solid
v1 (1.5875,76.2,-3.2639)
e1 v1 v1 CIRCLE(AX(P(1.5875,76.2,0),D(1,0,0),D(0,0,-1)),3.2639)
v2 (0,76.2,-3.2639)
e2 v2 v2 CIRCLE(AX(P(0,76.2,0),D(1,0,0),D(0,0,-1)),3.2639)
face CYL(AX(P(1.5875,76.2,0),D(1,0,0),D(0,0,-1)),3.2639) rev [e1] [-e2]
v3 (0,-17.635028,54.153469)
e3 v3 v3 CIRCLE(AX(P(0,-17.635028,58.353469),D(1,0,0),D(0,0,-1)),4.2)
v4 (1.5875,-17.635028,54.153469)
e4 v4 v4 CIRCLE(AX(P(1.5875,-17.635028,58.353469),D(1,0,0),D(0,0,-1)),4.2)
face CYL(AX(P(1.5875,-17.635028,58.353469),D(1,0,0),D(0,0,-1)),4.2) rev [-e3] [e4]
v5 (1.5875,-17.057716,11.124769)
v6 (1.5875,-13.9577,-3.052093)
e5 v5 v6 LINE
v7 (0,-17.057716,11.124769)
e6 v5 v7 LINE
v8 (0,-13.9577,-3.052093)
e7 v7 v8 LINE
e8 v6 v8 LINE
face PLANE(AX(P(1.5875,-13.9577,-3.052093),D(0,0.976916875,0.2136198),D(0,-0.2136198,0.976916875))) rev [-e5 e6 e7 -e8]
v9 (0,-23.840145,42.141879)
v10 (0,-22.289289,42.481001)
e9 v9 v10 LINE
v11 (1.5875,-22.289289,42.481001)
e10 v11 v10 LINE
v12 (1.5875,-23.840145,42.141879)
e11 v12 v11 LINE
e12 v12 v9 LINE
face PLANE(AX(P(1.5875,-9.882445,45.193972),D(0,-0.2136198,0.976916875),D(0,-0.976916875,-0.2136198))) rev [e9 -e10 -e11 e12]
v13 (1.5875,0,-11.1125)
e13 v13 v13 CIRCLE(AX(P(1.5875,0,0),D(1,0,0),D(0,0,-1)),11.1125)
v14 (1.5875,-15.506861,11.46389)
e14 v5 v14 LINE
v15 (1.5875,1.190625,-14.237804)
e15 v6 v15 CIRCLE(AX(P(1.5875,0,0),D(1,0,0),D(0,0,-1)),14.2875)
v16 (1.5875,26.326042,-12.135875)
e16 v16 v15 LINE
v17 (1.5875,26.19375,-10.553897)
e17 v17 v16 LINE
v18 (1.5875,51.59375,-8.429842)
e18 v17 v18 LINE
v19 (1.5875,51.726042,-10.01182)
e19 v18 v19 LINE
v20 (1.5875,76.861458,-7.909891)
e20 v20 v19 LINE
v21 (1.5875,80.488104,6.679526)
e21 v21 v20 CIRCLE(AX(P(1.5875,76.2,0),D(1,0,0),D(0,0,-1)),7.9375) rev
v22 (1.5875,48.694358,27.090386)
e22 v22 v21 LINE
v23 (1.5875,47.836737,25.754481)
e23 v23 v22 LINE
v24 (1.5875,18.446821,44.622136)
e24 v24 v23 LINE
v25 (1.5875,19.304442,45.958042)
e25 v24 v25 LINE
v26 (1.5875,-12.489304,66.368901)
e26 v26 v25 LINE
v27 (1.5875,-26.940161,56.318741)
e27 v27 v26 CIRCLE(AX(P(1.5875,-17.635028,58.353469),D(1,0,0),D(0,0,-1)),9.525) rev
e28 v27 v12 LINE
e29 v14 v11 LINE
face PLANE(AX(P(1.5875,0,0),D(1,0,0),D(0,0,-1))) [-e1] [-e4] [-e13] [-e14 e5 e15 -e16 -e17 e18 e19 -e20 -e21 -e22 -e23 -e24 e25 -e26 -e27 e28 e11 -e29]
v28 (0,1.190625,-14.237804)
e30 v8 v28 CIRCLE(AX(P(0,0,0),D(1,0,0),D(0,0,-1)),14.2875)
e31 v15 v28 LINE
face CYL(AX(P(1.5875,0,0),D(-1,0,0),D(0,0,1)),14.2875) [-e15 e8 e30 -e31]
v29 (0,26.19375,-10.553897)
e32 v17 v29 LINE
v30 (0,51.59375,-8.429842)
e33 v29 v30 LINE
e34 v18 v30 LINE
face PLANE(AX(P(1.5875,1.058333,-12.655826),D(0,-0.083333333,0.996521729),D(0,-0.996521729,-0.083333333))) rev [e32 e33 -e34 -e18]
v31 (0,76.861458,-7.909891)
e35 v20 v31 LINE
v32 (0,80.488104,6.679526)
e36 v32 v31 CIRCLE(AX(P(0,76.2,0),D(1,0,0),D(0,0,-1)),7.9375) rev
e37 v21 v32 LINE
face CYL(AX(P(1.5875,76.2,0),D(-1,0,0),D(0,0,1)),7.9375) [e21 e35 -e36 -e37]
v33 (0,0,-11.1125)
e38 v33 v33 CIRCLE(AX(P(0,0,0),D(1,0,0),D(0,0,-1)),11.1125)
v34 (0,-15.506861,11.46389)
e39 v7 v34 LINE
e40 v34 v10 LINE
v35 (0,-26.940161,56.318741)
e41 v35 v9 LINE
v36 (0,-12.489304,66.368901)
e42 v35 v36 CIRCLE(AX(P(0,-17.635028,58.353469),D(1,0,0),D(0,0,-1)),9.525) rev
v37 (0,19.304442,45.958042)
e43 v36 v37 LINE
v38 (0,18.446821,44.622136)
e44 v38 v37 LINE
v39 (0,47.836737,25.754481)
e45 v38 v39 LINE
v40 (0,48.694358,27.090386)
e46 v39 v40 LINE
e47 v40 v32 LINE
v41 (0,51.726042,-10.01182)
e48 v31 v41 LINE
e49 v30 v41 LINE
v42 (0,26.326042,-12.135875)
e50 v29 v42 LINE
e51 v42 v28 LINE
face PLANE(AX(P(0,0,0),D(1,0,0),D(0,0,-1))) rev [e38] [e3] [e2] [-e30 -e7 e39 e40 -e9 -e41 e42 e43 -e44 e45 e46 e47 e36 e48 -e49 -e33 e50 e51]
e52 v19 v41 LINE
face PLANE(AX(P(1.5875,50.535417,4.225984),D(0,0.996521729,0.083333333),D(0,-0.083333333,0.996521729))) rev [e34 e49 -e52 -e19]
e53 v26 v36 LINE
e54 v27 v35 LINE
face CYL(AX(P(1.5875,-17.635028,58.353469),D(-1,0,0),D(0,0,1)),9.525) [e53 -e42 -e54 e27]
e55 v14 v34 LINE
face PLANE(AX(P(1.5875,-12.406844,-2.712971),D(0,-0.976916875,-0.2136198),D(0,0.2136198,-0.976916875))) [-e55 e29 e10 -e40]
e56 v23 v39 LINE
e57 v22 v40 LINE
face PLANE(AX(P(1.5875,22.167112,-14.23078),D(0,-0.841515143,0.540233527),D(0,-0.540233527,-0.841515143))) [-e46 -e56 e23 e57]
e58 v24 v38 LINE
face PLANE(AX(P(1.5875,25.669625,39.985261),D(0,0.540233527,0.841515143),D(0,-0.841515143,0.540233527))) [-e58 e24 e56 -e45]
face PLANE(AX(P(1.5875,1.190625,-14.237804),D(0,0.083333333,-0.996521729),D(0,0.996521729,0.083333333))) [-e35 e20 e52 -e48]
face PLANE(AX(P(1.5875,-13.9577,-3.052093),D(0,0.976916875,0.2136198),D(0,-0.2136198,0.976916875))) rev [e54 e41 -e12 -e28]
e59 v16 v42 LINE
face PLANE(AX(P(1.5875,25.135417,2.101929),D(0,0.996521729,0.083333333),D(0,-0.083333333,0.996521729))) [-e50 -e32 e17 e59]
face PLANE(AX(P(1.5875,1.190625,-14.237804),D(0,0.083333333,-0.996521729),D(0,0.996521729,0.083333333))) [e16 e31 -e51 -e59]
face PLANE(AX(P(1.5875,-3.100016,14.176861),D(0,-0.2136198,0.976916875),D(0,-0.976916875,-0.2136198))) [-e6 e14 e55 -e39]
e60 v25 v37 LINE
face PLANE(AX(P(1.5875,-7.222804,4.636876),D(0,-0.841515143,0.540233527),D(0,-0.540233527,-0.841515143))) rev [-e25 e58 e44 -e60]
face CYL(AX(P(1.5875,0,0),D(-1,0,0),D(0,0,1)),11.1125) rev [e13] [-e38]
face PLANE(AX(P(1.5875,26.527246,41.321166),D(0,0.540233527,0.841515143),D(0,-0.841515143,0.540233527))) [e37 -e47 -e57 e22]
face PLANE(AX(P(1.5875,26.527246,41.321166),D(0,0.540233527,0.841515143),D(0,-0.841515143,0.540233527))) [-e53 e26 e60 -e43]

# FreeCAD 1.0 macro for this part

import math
import FreeCAD as App
import Part
import Sketcher
Q = App.Units.Quantity

doc = App.newDocument("Part")
params = doc.addObject("Spreadsheet::Sheet", "Params")
for row, (alias, value) in enumerate([
    ("sketch1_diameter", "0.875 in"),
    ("sketch1_radius", "0.375 in"),
    ("sketch1_radius2", "0.5625 in"),
    ("sketch1_radius3", "0.3125 in"),
    ("sketch1_length", "1.25 in"),
    ("pad1_length", "0.0625 in"),
    ("sketch2_diameter", "0.257 in"),
    ("hole_diameter", "0.257 in"),
    ("hole2_diameter", "8.4 mm"),
], start=1):
    params.set(f"A{row}", alias)
    params.set(f"B{row}", "=" + value)
    params.setAlias(f"B{row}", alias)

body = doc.addObject("PartDesign::Body", "Body")

sketch1 = doc.addObject("Sketcher::SketchObject", "Sketch")
body.addObject(sketch1)
sketch1.AttachmentSupport = (doc.YZ_Plane, [""])
sketch1.MapMode = "FlatFace"
sketch1.addGeometry(Part.ArcOfCircle(Part.Circle(App.Vector(-17.635028, 58.353469, 0), App.Vector(0, 0, 1), 9.525), math.radians(57.300463), math.radians(192.334567)), False)
sketch1.addGeometry(Part.LineSegment(App.Vector(-26.940161, 56.318741, 0), App.Vector(-23.840145, 42.141879, 0)), False)
sketch1.addGeometry(Part.LineSegment(App.Vector(-23.840145, 42.141879, 0), App.Vector(-22.289289, 42.481001, 0)), False)
sketch1.addGeometry(Part.LineSegment(App.Vector(-22.289289, 42.481001, 0), App.Vector(-15.506861, 11.46389, 0)), False)
sketch1.addGeometry(Part.LineSegment(App.Vector(-15.506861, 11.46389, 0), App.Vector(-17.057716, 11.124769, 0)), False)
sketch1.addGeometry(Part.LineSegment(App.Vector(-17.057716, 11.124769, 0), App.Vector(-13.9577, -3.052093, 0)), False)
sketch1.addGeometry(Part.ArcOfCircle(Part.Circle(App.Vector(0, 0, 0), App.Vector(0, 0, 1), 14.2875), math.radians(-167.665433), math.radians(-85.219808)), False)
sketch1.addGeometry(Part.LineSegment(App.Vector(1.190625, -14.237804, 0), App.Vector(26.326042, -12.135875, 0)), False)
sketch1.addGeometry(Part.LineSegment(App.Vector(26.326042, -12.135875, 0), App.Vector(26.19375, -10.553897, 0)), False)
sketch1.addGeometry(Part.LineSegment(App.Vector(26.19375, -10.553897, 0), App.Vector(51.59375, -8.429842, 0)), False)
sketch1.addGeometry(Part.LineSegment(App.Vector(51.59375, -8.429842, 0), App.Vector(51.726042, -10.01182, 0)), False)
sketch1.addGeometry(Part.LineSegment(App.Vector(51.726042, -10.01182, 0), App.Vector(76.861458, -7.909891, 0)), False)
sketch1.addGeometry(Part.ArcOfCircle(Part.Circle(App.Vector(76.2, 0, 0), App.Vector(0, 0, 1), 7.9375), math.radians(-85.219808), math.radians(57.300463)), False)
sketch1.addGeometry(Part.LineSegment(App.Vector(80.488104, 6.679526, 0), App.Vector(48.694358, 27.090386, 0)), False)
sketch1.addGeometry(Part.LineSegment(App.Vector(48.694358, 27.090386, 0), App.Vector(47.836737, 25.754481, 0)), False)
sketch1.addGeometry(Part.LineSegment(App.Vector(47.836737, 25.754481, 0), App.Vector(18.446821, 44.622136, 0)), False)
sketch1.addGeometry(Part.LineSegment(App.Vector(18.446821, 44.622136, 0), App.Vector(19.304442, 45.958042, 0)), False)
sketch1.addGeometry(Part.LineSegment(App.Vector(19.304442, 45.958042, 0), App.Vector(-12.489304, 66.368901, 0)), False)
sketch1.addGeometry(Part.Circle(App.Vector(0, 0, 0), App.Vector(0, 0, 1), 11.1125), False)
sketch1.addConstraint(Sketcher.Constraint("Tangent", 0, 2, 1, 1))
sketch1.addConstraint(Sketcher.Constraint("Coincident", 1, 2, 2, 1))
sketch1.addConstraint(Sketcher.Constraint("Coincident", 2, 2, 3, 1))
sketch1.addConstraint(Sketcher.Constraint("Coincident", 3, 2, 4, 1))
sketch1.addConstraint(Sketcher.Constraint("Coincident", 4, 2, 5, 1))
sketch1.addConstraint(Sketcher.Constraint("Tangent", 5, 2, 6, 1))
sketch1.addConstraint(Sketcher.Constraint("Tangent", 6, 2, 7, 1))
sketch1.addConstraint(Sketcher.Constraint("Coincident", 7, 2, 8, 1))
sketch1.addConstraint(Sketcher.Constraint("Coincident", 8, 2, 9, 1))
sketch1.addConstraint(Sketcher.Constraint("Coincident", 9, 2, 10, 1))
sketch1.addConstraint(Sketcher.Constraint("Coincident", 10, 2, 11, 1))
sketch1.addConstraint(Sketcher.Constraint("Tangent", 11, 2, 12, 1))
sketch1.addConstraint(Sketcher.Constraint("Tangent", 12, 2, 13, 1))
sketch1.addConstraint(Sketcher.Constraint("Coincident", 13, 2, 14, 1))
sketch1.addConstraint(Sketcher.Constraint("Coincident", 14, 2, 15, 1))
sketch1.addConstraint(Sketcher.Constraint("Coincident", 15, 2, 16, 1))
sketch1.addConstraint(Sketcher.Constraint("Coincident", 16, 2, 17, 1))
sketch1.addConstraint(Sketcher.Constraint("Tangent", 17, 2, 0, 1))
sketch1.addConstraint(Sketcher.Constraint("Coincident", 6, 3, -1, 1))
sketch1.addConstraint(Sketcher.Constraint("Coincident", 18, 3, -1, 1))
sketch1.addConstraint(Sketcher.Constraint("PointOnObject", 12, 3, -1))
sketch1.addConstraint(Sketcher.Constraint("Perpendicular", 1, 2))
sketch1.addConstraint(Sketcher.Constraint("Perpendicular", 2, 3))
sketch1.addConstraint(Sketcher.Constraint("Perpendicular", 3, 4))
sketch1.addConstraint(Sketcher.Constraint("Perpendicular", 4, 5))
sketch1.addConstraint(Sketcher.Constraint("Perpendicular", 7, 8))
sketch1.addConstraint(Sketcher.Constraint("Perpendicular", 8, 9))
sketch1.addConstraint(Sketcher.Constraint("Perpendicular", 9, 10))
sketch1.addConstraint(Sketcher.Constraint("Perpendicular", 10, 11))
sketch1.addConstraint(Sketcher.Constraint("Perpendicular", 13, 14))
sketch1.addConstraint(Sketcher.Constraint("Perpendicular", 14, 15))
sketch1.addConstraint(Sketcher.Constraint("Perpendicular", 15, 16))
sketch1.addConstraint(Sketcher.Constraint("Perpendicular", 16, 17))
sketch1.addConstraint(Sketcher.Constraint("Equal", 2, 4))
sketch1.addConstraint(Sketcher.Constraint("Equal", 1, 5))
sketch1.addConstraint(Sketcher.Constraint("Equal", 4, 8))
sketch1.addConstraint(Sketcher.Constraint("Equal", 8, 10))
sketch1.addConstraint(Sketcher.Constraint("Equal", 7, 11))
sketch1.addConstraint(Sketcher.Constraint("Equal", 10, 14))
sketch1.addConstraint(Sketcher.Constraint("Equal", 14, 16))
sketch1.addConstraint(Sketcher.Constraint("Equal", 13, 17))
sketch1.addConstraint(Sketcher.Constraint("Diameter", 18, Q("0.875 in")))
sketch1.addConstraint(Sketcher.Constraint("DistanceX", -1, 1, 12, 3, Q("3 in")))
sketch1.addConstraint(Sketcher.Constraint("Radius", 0, Q("0.375 in")))
sketch1.addConstraint(Sketcher.Constraint("Radius", 6, Q("0.5625 in")))
sketch1.addConstraint(Sketcher.Constraint("Radius", 12, Q("0.3125 in")))
sketch1.addConstraint(Sketcher.Constraint("DistanceX", 8, 2, 9, 2, Q("1 in")))
sketch1.addConstraint(Sketcher.Constraint("Distance", 3, Q("1.25 in")))
sketch1.addConstraint(Sketcher.Constraint("Distance", 2, Q("0.0625 in")))
sketch1.addConstraint(Sketcher.Constraint("Distance", 15, Q("1.375 in")))
sketch1.addConstraint(Sketcher.Constraint("DistanceY", -1, 1, 2, 2, 42.481001))
sketch1.addConstraint(Sketcher.Constraint("DistanceX", 5, 2, -1, 1, 13.9577))
sketch1.setExpression("Constraints[41]", "Params.sketch1_diameter")
sketch1.setExpression("Constraints[43]", "Params.sketch1_radius")
sketch1.setExpression("Constraints[44]", "Params.sketch1_radius2")
sketch1.setExpression("Constraints[45]", "Params.sketch1_radius3")
sketch1.setExpression("Constraints[47]", "Params.sketch1_length")
pad1 = doc.addObject("PartDesign::Pad", "Pad")
body.addObject(pad1)
pad1.Profile = sketch1
pad1.setExpression("Length", "Params.pad1_length")

sketch2 = doc.addObject("Sketcher::SketchObject", "Sketch001")
body.addObject(sketch2)
sketch2.AttachmentSupport = (doc.YZ_Plane, [""])
sketch2.MapMode = "FlatFace"
sketch2.AttachmentOffset = App.Placement(App.Vector(0, 0, 0.0625 * 25.4), App.Rotation())
sketch2.addGeometry(Part.Circle(App.Vector(76.2, 0, 0), App.Vector(0, 0, 1), 3.2639), False)
sketch2.addConstraint(Sketcher.Constraint("PointOnObject", 0, 3, -1))
sketch2.addConstraint(Sketcher.Constraint("Diameter", 0, Q("0.257 in")))
sketch2.addConstraint(Sketcher.Constraint("DistanceX", -1, 1, 0, 3, Q("3 in")))
sketch2.setExpression("Constraints[1]", "Params.sketch2_diameter")
doc.recompute()
hole = doc.addObject("PartDesign::Hole", "Hole")
body.addObject(hole)
hole.Profile = sketch2
hole.ThreadType = "None"
hole.setExpression("Diameter", "Params.hole_diameter")
hole.DepthType = "ThroughAll"

sketch3 = doc.addObject("Sketcher::SketchObject", "Sketch002")
body.addObject(sketch3)
sketch3.AttachmentSupport = (doc.YZ_Plane, [""])
sketch3.MapMode = "FlatFace"
sketch3.AttachmentOffset = App.Placement(App.Vector(0, 0, 0.0625 * 25.4), App.Rotation())
sketch3.addGeometry(Part.Circle(App.Vector(-17.635028, 58.353469, 0), App.Vector(0, 0, 1), 4.2), False)
sketch3.addConstraint(Sketcher.Constraint("Diameter", 0, 8.4))
sketch3.addConstraint(Sketcher.Constraint("DistanceX", 0, 3, -1, 1, 17.635028))
sketch3.addConstraint(Sketcher.Constraint("DistanceY", -1, 1, 0, 3, 58.353469))
doc.recompute()
hole2 = doc.addObject("PartDesign::Hole", "Hole001")
body.addObject(hole2)
hole2.Profile = sketch3
hole2.ThreadType = "None"
hole2.setExpression("Diameter", "Params.hole2_diameter")
hole2.DepthType = "ThroughAll"

doc.recompute()
